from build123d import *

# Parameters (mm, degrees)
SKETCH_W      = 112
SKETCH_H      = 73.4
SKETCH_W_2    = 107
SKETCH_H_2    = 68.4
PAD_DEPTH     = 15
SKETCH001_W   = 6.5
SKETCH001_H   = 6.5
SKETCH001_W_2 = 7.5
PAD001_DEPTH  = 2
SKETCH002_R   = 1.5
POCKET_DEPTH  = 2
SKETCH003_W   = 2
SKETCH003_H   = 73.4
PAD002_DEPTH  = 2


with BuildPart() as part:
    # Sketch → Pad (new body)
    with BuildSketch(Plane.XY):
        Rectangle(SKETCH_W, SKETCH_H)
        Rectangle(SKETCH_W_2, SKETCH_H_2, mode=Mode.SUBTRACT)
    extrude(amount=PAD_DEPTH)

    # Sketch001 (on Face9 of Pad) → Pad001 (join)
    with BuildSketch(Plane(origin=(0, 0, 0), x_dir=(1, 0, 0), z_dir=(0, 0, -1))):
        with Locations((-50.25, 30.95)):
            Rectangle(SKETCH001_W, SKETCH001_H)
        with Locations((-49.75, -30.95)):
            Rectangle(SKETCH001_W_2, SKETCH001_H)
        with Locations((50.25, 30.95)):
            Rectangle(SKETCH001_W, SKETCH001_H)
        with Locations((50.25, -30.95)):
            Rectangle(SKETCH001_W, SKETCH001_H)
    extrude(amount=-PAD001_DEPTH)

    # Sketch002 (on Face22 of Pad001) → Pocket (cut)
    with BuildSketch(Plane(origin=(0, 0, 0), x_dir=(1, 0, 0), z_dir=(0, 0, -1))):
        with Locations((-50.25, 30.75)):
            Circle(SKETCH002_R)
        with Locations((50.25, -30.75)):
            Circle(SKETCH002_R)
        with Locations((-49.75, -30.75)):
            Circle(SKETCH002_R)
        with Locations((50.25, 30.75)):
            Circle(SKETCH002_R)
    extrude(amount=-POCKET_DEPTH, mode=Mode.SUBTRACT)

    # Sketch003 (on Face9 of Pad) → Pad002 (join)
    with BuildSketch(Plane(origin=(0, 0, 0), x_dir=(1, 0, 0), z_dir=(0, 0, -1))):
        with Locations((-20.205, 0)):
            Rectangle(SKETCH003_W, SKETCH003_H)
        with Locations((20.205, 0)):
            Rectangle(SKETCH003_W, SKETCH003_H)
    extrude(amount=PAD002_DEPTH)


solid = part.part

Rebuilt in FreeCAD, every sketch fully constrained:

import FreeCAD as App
import Part
import Sketcher
from FreeCAD import Vector


def add_polygon(sketch, points):
    """Adds a closed chain of lines whose ends are joined by coincident constraints."""
    first, n = sketch.GeometryCount, len(points)
    for a, b in zip(points, points[1:] + points[:1]):
        sketch.addGeometry(Part.LineSegment(App.Vector(*a, 0), App.Vector(*b, 0)), False)
    for i in range(n):
        sketch.addConstraint(Sketcher.Constraint("Coincident", first + i, 2, first + (i + 1) % n, 1))

doc = App.newDocument("Part")
params = doc.addObject("Spreadsheet::Sheet", "Params")
for row, (alias, value) in enumerate([
    ("sketch1_width", "112 mm"),
    ("sketch1_width2", "107 mm"),
    ("sketch1_height", "73.4 mm"),
    ("sketch1_height2", "68.4 mm"),
    ("pad1_length", "15 mm"),
    ("sketch2_width", "6.5 mm"),
    ("sketch2_width2", "7.5 mm"),
    ("pad2_length", "2 mm"),
    ("sketch3_diameter", "3 mm"),
    ("pocket1_length", "2 mm"),
    ("sketch4_width", "2 mm"),
    ("sketch4_height", "73.4 mm"),
    ("pad3_length", "2 mm"),
], start=1):
    params.set(f"A{row}", alias)
    params.set(f"B{row}", "=" + value)
    params.setAlias(f"B{row}", alias)

body = doc.addObject("PartDesign::Body", "Body")

sketch1 = body.newObject("Sketcher::SketchObject", "Sketch")
sketch1.AttachmentSupport = (doc.getObject("XY_Plane"), [""])
sketch1.MapMode = "FlatFace"
add_polygon(sketch1, [(-56, 37), (-56, -37), (56, -37), (56, 37)])
add_polygon(sketch1, [(54, -34), (-54, -34), (-54, 34), (54, 34)])
sketch1.addConstraint([
    Sketcher.Constraint("Vertical", 0),
    Sketcher.Constraint("Horizontal", 1),
    Sketcher.Constraint("Vertical", 2),
    Sketcher.Constraint("Horizontal", 3),
    Sketcher.Constraint("Horizontal", 4),
    Sketcher.Constraint("Vertical", 5),
    Sketcher.Constraint("Horizontal", 6),
    Sketcher.Constraint("Vertical", 7),
    Sketcher.Constraint("Symmetric", 0, 2, 2, 2, -1, 1),
    Sketcher.Constraint("Symmetric", 4, 2, 6, 2, -1, 1),
    Sketcher.Constraint("DistanceX", 1, 1, 1, 2, 112.0),
    Sketcher.Constraint("DistanceX", 4, 2, 4, 1, 107.0),
    Sketcher.Constraint("DistanceY", 0, 2, 0, 1, 73.4),
    Sketcher.Constraint("DistanceY", 5, 1, 5, 2, 68.4),
])
sketch1.setExpression("Constraints[18]", "Params.sketch1_width")
sketch1.setExpression("Constraints[19]", "Params.sketch1_width2")
sketch1.setExpression("Constraints[20]", "Params.sketch1_height")
sketch1.setExpression("Constraints[21]", "Params.sketch1_height2")
pad1 = body.newObject("PartDesign::Pad", "Pad")
pad1.Profile = sketch1
pad1.setExpression("Length", "Params.pad1_length")

sketch2 = body.newObject("Sketcher::SketchObject", "Sketch001")
sketch2.AttachmentSupport = (doc.getObject("XY_Plane"), [""])
sketch2.MapMode = "FlatFace"
add_polygon(sketch2, [(-54, -34), (-54, -28), (-47, -28), (-47, -34)])
add_polygon(sketch2, [(-54, 28), (-54, 34), (-46, 34), (-46, 28)])
add_polygon(sketch2, [(47, -34), (47, -28), (54, -28), (54, -34)])
add_polygon(sketch2, [(47, 28), (47, 34), (54, 34), (54, 28)])
sketch2.addConstraint([
    Sketcher.Constraint("Vertical", 0),
    Sketcher.Constraint("Horizontal", 1),
    Sketcher.Constraint("Vertical", 2),
    Sketcher.Constraint("Horizontal", 3),
    Sketcher.Constraint("Vertical", 4),
    Sketcher.Constraint("Horizontal", 5),
    Sketcher.Constraint("Vertical", 6),
    Sketcher.Constraint("Horizontal", 7),
    Sketcher.Constraint("Vertical", 8),
    Sketcher.Constraint("Horizontal", 9),
    Sketcher.Constraint("Vertical", 10),
    Sketcher.Constraint("Horizontal", 11),
    Sketcher.Constraint("Vertical", 12),
    Sketcher.Constraint("Horizontal", 13),
    Sketcher.Constraint("Vertical", 14),
    Sketcher.Constraint("Horizontal", 15),
    Sketcher.Constraint("Symmetric", 7, 2, 9, 2, -1, 1),
    Sketcher.Constraint("Symmetric", 2, 2, 12, 2, -1, 1),
    Sketcher.Constraint("Symmetric", 0, 2, 14, 2, -1, 1),
    Sketcher.Constraint("Symmetric", 1, 2, 8, 2, -2),
    Sketcher.Constraint("Symmetric", 3, 2, 10, 2, -2),
    Sketcher.Constraint("Horizontal", 5, 2, 12, 2),
    Sketcher.Constraint("Equal", 15, 0),
    Sketcher.Constraint("DistanceX", 1, 1, 1, 2, 6.5),
    Sketcher.Constraint("DistanceX", 5, 1, 5, 2, 7.5),
    Sketcher.Constraint("DistanceX", 1, 2, -1, 1, 47.0),
    Sketcher.Constraint("DistanceY", 0, 2, -1, 1, 27.7),
])
sketch2.setExpression("Constraints[39]", "Params.sketch2_width")
sketch2.setExpression("Constraints[40]", "Params.sketch2_width2")
pad2 = body.newObject("PartDesign::Pad", "Pad001")
pad2.Profile = sketch2
pad2.setExpression("Length", "Params.pad2_length")

sketch3 = body.newObject("Sketcher::SketchObject", "Sketch002")
sketch3.AttachmentSupport = (doc.getObject("XY_Plane"), [""])
sketch3.MapMode = "FlatFace"
sketch3.addGeometry([
    Part.Circle(Vector(-50.2, -30.8, 0), Vector(0, 0, 1), 1.5),
    Part.Circle(Vector(50.2, 30.8, 0), Vector(0, 0, 1), 1.5),
    Part.Circle(Vector(-49.8, 30.8, 0), Vector(0, 0, 1), 1.5),
    Part.Circle(Vector(50.2, -30.8, 0), Vector(0, 0, 1), 1.5),
], False)
sketch3.addConstraint([
    Sketcher.Constraint("Equal", 0, 1),
    Sketcher.Constraint("Equal", 1, 2),
    Sketcher.Constraint("Equal", 2, 3),
    Sketcher.Constraint("Symmetric", 0, 3, 1, 3, -1, 1),
    Sketcher.Constraint("Symmetric", 0, 3, 3, 3, -2),
    Sketcher.Constraint("Horizontal", 1, 3, 2, 3),
    Sketcher.Constraint("Diameter", 0, 3.0),
    Sketcher.Constraint("DistanceX", 2, 3, 1, 3, 100.0),
    Sketcher.Constraint("DistanceX", 0, 3, 1, 3, 100.5),
    Sketcher.Constraint("DistanceY", 0, 3, 1, 3, 61.5),
])
sketch3.setExpression("Constraints[6]", "Params.sketch3_diameter")
pocket1 = body.newObject("PartDesign::Pocket", "Pocket")
pocket1.Profile = sketch3
pocket1.setExpression("Length", "Params.pocket1_length")
pocket1.Reversed = True

sketch4 = body.newObject("Sketcher::SketchObject", "Sketch003")
sketch4.AttachmentSupport = (doc.getObject("XY_Plane"), [""])
sketch4.MapMode = "FlatFace"
add_polygon(sketch4, [(-21.2, -36.7), (-21.2, 36.7), (-19.2, 36.7), (-19.2, -36.7)])
add_polygon(sketch4, [(19.2, -36.7), (19.2, 36.7), (21.2, 36.7), (21.2, -36.7)])
sketch4.addConstraint([
    Sketcher.Constraint("Vertical", 0),
    Sketcher.Constraint("Horizontal", 1),
    Sketcher.Constraint("Vertical", 2),
    Sketcher.Constraint("Horizontal", 3),
    Sketcher.Constraint("Vertical", 4),
    Sketcher.Constraint("Horizontal", 5),
    Sketcher.Constraint("Vertical", 6),
    Sketcher.Constraint("Horizontal", 7),
    Sketcher.Constraint("Symmetric", 2, 2, 4, 2, -1, 1),
    Sketcher.Constraint("Symmetric", 0, 2, 6, 2, -1, 1),
    Sketcher.Constraint("Horizontal", 1, 2, 4, 2),
    Sketcher.Constraint("DistanceX", 1, 1, 1, 2, 2.0),
    Sketcher.Constraint("DistanceY", 0, 1, 0, 2, 73.4),
    Sketcher.Constraint("DistanceX", 1, 2, 4, 2, 38.41),
])
sketch4.setExpression("Constraints[19]", "Params.sketch4_width")
sketch4.setExpression("Constraints[20]", "Params.sketch4_height")
pad3 = body.newObject("PartDesign::Pad", "Pad002")
pad3.Profile = sketch4
pad3.setExpression("Length", "Params.pad3_length")
pad3.Reversed = True

doc.recompute()
